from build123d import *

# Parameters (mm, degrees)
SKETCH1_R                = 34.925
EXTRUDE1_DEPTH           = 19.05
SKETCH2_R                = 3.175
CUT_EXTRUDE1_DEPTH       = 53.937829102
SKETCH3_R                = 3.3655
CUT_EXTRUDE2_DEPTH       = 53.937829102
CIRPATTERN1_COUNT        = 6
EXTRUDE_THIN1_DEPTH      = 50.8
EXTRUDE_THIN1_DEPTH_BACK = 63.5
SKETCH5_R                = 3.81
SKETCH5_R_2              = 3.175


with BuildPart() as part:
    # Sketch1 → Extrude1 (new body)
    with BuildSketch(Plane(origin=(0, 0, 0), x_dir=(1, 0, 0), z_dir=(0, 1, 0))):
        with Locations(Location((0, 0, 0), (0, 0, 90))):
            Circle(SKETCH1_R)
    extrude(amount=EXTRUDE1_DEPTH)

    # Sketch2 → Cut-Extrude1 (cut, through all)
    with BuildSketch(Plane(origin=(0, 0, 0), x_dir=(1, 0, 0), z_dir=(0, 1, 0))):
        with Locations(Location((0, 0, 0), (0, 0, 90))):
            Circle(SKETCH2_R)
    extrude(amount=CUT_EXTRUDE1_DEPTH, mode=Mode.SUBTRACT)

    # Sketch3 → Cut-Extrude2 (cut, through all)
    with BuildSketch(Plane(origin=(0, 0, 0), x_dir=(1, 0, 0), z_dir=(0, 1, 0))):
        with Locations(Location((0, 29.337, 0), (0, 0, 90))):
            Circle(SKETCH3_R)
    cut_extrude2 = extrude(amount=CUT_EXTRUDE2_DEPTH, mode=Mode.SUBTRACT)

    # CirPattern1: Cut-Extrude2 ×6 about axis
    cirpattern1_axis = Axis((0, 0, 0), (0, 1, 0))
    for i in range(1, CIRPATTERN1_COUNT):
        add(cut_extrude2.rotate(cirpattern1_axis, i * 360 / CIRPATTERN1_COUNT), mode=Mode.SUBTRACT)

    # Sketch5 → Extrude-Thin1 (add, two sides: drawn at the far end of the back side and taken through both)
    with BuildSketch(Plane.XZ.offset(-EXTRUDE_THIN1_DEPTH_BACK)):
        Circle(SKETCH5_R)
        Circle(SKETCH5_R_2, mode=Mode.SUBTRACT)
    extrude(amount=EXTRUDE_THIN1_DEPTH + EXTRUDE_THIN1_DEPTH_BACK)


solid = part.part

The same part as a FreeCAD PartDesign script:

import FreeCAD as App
import Part
import Sketcher
from FreeCAD import Vector
Q = App.Units.Quantity

doc = App.newDocument("Part")
body = doc.addObject("PartDesign::Body", "Body")

sketch1 = body.newObject("Sketcher::SketchObject", "Sketch")
sketch1.AttachmentSupport = (doc.getObject("XZ_Plane"), [""])
sketch1.MapMode = "FlatFace"
sketch1.addGeometry(Part.Circle(Vector(0, 0, 0), Vector(0, 0, 1), 35), False)
sketch1.addConstraint(Sketcher.Constraint("Coincident", 0, 3, -1, 1))
sketch1.addConstraint(Sketcher.Constraint("Diameter", 0, Q("2.75 in")))
pad1 = body.newObject("PartDesign::Pad", "Pad")
pad1.Profile = sketch1
pad1.Length = Q("0.75 in")
pad1.Reversed = True

sketch2 = body.newObject("Sketcher::SketchObject", "Sketch001")
sketch2.AttachmentSupport = (doc.getObject("XZ_Plane"), [""])
sketch2.MapMode = "FlatFace"
sketch2.addGeometry(Part.Circle(Vector(0, 0, 0), Vector(0, 0, 1), 3.2), False)
sketch2.addConstraint(Sketcher.Constraint("Coincident", 0, 3, -1, 1))
sketch2.addConstraint(Sketcher.Constraint("Diameter", 0, Q("0.25 in")))
pocket1 = body.newObject("PartDesign::Pocket", "Pocket")
pocket1.Profile = sketch2
pocket1.Type = "ThroughAll"

sketch3 = body.newObject("Sketcher::SketchObject", "Sketch002")
sketch3.AttachmentSupport = (doc.getObject("XZ_Plane"), [""])
sketch3.MapMode = "FlatFace"
sketch3.addGeometry(Part.Circle(Vector(0, -29.3, 0), Vector(0, 0, 1), 3.4), False)
sketch3.addConstraint(Sketcher.Constraint("PointOnObject", 0, 3, -2))
sketch3.addConstraint(Sketcher.Constraint("Diameter", 0, Q("0.265 in")))
sketch3.addConstraint(Sketcher.Constraint("DistanceY", 0, 3, -1, 1, Q("1.155 in")))
pocket2 = body.newObject("PartDesign::Pocket", "Pocket001")
pocket2.Profile = sketch3
pocket2.Type = "ThroughAll"
doc.recompute()

polarpattern = body.newObject("PartDesign::PolarPattern", "PolarPattern")
polarpattern.Originals = [pocket2]
polarpattern.Axis = (doc.getObject("Y_Axis"), [""])
polarpattern.Angle = 360
polarpattern.Occurrences = 6
body.Tip = polarpattern

sketch4 = body.newObject("Sketcher::SketchObject", "Sketch003")
sketch4.AttachmentSupport = (doc.getObject("XZ_Plane"), [""])
sketch4.MapMode = "FlatFace"
sketch4.addGeometry(Part.Circle(Vector(0, 0, 0), Vector(0, 0, 1), 3.8), False)
sketch4.addGeometry(Part.Circle(Vector(0, 0, 0), Vector(0, 0, 1), 3.2), False)
sketch4.addConstraint(Sketcher.Constraint("Coincident", 0, 3, -1, 1))
sketch4.addConstraint(Sketcher.Constraint("Coincident", 1, 3, -1, 1))
sketch4.addConstraint(Sketcher.Constraint("Diameter", 0, Q("0.3 in")))
sketch4.addConstraint(Sketcher.Constraint("Diameter", 1, Q("0.25 in")))
pad2 = body.newObject("PartDesign::Pad", "Pad001")
pad2.Profile = sketch4
pad2.Type = "TwoLengths"
pad2.Length = Q("2 in")
pad2.Length2 = Q("2.5 in")

doc.recompute()
